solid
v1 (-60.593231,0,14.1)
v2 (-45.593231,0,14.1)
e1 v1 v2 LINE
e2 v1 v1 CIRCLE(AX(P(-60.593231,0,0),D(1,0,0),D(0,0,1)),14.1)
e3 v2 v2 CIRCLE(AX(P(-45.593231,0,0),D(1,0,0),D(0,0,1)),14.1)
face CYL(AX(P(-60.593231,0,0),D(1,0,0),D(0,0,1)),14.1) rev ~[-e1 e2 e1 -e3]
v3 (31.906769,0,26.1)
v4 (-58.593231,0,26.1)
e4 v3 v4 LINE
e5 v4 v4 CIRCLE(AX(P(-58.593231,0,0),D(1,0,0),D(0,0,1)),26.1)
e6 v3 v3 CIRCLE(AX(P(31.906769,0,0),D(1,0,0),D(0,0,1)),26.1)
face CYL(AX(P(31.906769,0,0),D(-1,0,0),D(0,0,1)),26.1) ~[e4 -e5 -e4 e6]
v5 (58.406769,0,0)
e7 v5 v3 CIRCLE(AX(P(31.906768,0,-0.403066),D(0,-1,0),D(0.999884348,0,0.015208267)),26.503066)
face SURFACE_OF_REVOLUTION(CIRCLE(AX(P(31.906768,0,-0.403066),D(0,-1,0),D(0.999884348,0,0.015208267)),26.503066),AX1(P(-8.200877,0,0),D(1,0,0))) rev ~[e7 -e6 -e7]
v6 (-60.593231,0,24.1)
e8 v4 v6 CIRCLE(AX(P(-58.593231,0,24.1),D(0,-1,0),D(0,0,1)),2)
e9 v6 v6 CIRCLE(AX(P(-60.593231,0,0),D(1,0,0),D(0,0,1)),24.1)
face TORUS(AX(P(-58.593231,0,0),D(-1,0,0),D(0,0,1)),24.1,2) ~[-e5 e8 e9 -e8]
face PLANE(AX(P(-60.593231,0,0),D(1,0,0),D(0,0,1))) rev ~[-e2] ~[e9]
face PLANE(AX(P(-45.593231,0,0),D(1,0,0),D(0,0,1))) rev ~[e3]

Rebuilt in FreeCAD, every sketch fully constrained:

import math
import FreeCAD as App
import Part
import Sketcher

V = App.Vector
Q = App.Units.Quantity


def edges_at(feature, points):
    """Names of the edges that pass closest to the given points."""
    edges = feature.Shape.Edges
    near = lambda p: min(range(len(edges)), key=lambda i: edges[i].distToShape(Part.Vertex(*p))[0])
    return sorted({f"Edge{near(p) + 1}" for p in points})

doc = App.newDocument("Part")
params = doc.addObject("Spreadsheet::Sheet", "Params")
for row, (alias, value) in enumerate([
    ("sketch1_width", "104 mm"),
    ("sketch1_width2", "15 mm"),
    ("sketch1_height", "12 mm"),
    ("sketch1_width3", "92.5 mm"),
    ("sketch1_height2", "14.1 mm"),
    ("revolution_angle", "360 deg"),
    ("fillet_radius", "2 mm"),
], start=1):
    params.set(f"A{row}", alias)
    params.set(f"B{row}", "=" + value)
    params.setAlias(f"B{row}", alias)

body = doc.addObject("PartDesign::Body", "Body")

# Sketch on XZ plane
sketch1 = body.newObject("Sketcher::SketchObject", "Sketch")
sketch1.AttachmentSupport = (doc.getObject("XZ_Plane"), [""])
sketch1.MapMode = "FlatFace"
sketch1.addGeometry(Part.LineSegment(V(-46, 14, 0), V(-46, 0, 0)), False)
sketch1.addGeometry(Part.LineSegment(V(-46, 0, 0), V(58, 0, 0)), False)
sketch1.addGeometry(Part.ArcOfCircle(Part.Circle(V(32, 0, 0), V(0, 0, 1), 27), math.radians(1), math.radians(90)), False)
sketch1.addGeometry(Part.LineSegment(V(32, 26, 0), V(-61, 26, 0)), False)
sketch1.addGeometry(Part.LineSegment(V(-61, 26, 0), V(-61, 14, 0)), False)
sketch1.addGeometry(Part.LineSegment(V(-61, 14, 0), V(-46, 14, 0)), False)
sketch1.addConstraint(Sketcher.Constraint("Coincident", 0, 2, 1, 1))
sketch1.addConstraint(Sketcher.Constraint("Coincident", 1, 2, 2, 1))
sketch1.addConstraint(Sketcher.Constraint("Tangent", 2, 2, 3, 1))
sketch1.addConstraint(Sketcher.Constraint("Coincident", 3, 2, 4, 1))
sketch1.addConstraint(Sketcher.Constraint("Coincident", 4, 2, 5, 1))
sketch1.addConstraint(Sketcher.Constraint("Coincident", 5, 2, 0, 1))
sketch1.addConstraint(Sketcher.Constraint("Vertical", 0))
sketch1.addConstraint(Sketcher.Constraint("Horizontal", 1))
sketch1.addConstraint(Sketcher.Constraint("Horizontal", 3))
sketch1.addConstraint(Sketcher.Constraint("Vertical", 4))
sketch1.addConstraint(Sketcher.Constraint("Horizontal", 5))
sketch1.addConstraint(Sketcher.Constraint("PointOnObject", 0, 2, -1))
sketch1.addConstraint(Sketcher.Constraint("DistanceX", 1, 1, 1, 2, Q("104 mm")))
sketch1.addConstraint(Sketcher.Constraint("DistanceX", 5, 1, 5, 2, Q("15 mm")))
sketch1.addConstraint(Sketcher.Constraint("DistanceY", 4, 2, 4, 1, Q("12 mm")))
sketch1.addConstraint(Sketcher.Constraint("DistanceX", 3, 2, 3, 1, Q("92.5 mm")))
sketch1.addConstraint(Sketcher.Constraint("DistanceY", 0, 2, 0, 1, Q("14.1 mm")))
sketch1.addConstraint(Sketcher.Constraint("DistanceX", -1, 1, 2, 3, Q("31.906768 mm")))
sketch1.setExpression("Constraints[12]", "Params.sketch1_width")
sketch1.setExpression("Constraints[13]", "Params.sketch1_width2")
sketch1.setExpression("Constraints[14]", "Params.sketch1_height")
sketch1.setExpression("Constraints[15]", "Params.sketch1_width3")
sketch1.setExpression("Constraints[16]", "Params.sketch1_height2")
revolution = body.newObject("PartDesign::Revolution", "Revolution")
revolution.Profile = sketch1
revolution.ReferenceAxis = (sketch1, ["H_Axis"])
revolution.setExpression("Angle", "Params.revolution_angle")
doc.recompute()

fillet = body.newObject("PartDesign::Fillet", "Fillet")
fillet.Base = (revolution, edges_at(revolution, [(-60.593, 0, -26.1)]))
fillet.setExpression("Radius", "Params.fillet_radius")

doc.recompute()
